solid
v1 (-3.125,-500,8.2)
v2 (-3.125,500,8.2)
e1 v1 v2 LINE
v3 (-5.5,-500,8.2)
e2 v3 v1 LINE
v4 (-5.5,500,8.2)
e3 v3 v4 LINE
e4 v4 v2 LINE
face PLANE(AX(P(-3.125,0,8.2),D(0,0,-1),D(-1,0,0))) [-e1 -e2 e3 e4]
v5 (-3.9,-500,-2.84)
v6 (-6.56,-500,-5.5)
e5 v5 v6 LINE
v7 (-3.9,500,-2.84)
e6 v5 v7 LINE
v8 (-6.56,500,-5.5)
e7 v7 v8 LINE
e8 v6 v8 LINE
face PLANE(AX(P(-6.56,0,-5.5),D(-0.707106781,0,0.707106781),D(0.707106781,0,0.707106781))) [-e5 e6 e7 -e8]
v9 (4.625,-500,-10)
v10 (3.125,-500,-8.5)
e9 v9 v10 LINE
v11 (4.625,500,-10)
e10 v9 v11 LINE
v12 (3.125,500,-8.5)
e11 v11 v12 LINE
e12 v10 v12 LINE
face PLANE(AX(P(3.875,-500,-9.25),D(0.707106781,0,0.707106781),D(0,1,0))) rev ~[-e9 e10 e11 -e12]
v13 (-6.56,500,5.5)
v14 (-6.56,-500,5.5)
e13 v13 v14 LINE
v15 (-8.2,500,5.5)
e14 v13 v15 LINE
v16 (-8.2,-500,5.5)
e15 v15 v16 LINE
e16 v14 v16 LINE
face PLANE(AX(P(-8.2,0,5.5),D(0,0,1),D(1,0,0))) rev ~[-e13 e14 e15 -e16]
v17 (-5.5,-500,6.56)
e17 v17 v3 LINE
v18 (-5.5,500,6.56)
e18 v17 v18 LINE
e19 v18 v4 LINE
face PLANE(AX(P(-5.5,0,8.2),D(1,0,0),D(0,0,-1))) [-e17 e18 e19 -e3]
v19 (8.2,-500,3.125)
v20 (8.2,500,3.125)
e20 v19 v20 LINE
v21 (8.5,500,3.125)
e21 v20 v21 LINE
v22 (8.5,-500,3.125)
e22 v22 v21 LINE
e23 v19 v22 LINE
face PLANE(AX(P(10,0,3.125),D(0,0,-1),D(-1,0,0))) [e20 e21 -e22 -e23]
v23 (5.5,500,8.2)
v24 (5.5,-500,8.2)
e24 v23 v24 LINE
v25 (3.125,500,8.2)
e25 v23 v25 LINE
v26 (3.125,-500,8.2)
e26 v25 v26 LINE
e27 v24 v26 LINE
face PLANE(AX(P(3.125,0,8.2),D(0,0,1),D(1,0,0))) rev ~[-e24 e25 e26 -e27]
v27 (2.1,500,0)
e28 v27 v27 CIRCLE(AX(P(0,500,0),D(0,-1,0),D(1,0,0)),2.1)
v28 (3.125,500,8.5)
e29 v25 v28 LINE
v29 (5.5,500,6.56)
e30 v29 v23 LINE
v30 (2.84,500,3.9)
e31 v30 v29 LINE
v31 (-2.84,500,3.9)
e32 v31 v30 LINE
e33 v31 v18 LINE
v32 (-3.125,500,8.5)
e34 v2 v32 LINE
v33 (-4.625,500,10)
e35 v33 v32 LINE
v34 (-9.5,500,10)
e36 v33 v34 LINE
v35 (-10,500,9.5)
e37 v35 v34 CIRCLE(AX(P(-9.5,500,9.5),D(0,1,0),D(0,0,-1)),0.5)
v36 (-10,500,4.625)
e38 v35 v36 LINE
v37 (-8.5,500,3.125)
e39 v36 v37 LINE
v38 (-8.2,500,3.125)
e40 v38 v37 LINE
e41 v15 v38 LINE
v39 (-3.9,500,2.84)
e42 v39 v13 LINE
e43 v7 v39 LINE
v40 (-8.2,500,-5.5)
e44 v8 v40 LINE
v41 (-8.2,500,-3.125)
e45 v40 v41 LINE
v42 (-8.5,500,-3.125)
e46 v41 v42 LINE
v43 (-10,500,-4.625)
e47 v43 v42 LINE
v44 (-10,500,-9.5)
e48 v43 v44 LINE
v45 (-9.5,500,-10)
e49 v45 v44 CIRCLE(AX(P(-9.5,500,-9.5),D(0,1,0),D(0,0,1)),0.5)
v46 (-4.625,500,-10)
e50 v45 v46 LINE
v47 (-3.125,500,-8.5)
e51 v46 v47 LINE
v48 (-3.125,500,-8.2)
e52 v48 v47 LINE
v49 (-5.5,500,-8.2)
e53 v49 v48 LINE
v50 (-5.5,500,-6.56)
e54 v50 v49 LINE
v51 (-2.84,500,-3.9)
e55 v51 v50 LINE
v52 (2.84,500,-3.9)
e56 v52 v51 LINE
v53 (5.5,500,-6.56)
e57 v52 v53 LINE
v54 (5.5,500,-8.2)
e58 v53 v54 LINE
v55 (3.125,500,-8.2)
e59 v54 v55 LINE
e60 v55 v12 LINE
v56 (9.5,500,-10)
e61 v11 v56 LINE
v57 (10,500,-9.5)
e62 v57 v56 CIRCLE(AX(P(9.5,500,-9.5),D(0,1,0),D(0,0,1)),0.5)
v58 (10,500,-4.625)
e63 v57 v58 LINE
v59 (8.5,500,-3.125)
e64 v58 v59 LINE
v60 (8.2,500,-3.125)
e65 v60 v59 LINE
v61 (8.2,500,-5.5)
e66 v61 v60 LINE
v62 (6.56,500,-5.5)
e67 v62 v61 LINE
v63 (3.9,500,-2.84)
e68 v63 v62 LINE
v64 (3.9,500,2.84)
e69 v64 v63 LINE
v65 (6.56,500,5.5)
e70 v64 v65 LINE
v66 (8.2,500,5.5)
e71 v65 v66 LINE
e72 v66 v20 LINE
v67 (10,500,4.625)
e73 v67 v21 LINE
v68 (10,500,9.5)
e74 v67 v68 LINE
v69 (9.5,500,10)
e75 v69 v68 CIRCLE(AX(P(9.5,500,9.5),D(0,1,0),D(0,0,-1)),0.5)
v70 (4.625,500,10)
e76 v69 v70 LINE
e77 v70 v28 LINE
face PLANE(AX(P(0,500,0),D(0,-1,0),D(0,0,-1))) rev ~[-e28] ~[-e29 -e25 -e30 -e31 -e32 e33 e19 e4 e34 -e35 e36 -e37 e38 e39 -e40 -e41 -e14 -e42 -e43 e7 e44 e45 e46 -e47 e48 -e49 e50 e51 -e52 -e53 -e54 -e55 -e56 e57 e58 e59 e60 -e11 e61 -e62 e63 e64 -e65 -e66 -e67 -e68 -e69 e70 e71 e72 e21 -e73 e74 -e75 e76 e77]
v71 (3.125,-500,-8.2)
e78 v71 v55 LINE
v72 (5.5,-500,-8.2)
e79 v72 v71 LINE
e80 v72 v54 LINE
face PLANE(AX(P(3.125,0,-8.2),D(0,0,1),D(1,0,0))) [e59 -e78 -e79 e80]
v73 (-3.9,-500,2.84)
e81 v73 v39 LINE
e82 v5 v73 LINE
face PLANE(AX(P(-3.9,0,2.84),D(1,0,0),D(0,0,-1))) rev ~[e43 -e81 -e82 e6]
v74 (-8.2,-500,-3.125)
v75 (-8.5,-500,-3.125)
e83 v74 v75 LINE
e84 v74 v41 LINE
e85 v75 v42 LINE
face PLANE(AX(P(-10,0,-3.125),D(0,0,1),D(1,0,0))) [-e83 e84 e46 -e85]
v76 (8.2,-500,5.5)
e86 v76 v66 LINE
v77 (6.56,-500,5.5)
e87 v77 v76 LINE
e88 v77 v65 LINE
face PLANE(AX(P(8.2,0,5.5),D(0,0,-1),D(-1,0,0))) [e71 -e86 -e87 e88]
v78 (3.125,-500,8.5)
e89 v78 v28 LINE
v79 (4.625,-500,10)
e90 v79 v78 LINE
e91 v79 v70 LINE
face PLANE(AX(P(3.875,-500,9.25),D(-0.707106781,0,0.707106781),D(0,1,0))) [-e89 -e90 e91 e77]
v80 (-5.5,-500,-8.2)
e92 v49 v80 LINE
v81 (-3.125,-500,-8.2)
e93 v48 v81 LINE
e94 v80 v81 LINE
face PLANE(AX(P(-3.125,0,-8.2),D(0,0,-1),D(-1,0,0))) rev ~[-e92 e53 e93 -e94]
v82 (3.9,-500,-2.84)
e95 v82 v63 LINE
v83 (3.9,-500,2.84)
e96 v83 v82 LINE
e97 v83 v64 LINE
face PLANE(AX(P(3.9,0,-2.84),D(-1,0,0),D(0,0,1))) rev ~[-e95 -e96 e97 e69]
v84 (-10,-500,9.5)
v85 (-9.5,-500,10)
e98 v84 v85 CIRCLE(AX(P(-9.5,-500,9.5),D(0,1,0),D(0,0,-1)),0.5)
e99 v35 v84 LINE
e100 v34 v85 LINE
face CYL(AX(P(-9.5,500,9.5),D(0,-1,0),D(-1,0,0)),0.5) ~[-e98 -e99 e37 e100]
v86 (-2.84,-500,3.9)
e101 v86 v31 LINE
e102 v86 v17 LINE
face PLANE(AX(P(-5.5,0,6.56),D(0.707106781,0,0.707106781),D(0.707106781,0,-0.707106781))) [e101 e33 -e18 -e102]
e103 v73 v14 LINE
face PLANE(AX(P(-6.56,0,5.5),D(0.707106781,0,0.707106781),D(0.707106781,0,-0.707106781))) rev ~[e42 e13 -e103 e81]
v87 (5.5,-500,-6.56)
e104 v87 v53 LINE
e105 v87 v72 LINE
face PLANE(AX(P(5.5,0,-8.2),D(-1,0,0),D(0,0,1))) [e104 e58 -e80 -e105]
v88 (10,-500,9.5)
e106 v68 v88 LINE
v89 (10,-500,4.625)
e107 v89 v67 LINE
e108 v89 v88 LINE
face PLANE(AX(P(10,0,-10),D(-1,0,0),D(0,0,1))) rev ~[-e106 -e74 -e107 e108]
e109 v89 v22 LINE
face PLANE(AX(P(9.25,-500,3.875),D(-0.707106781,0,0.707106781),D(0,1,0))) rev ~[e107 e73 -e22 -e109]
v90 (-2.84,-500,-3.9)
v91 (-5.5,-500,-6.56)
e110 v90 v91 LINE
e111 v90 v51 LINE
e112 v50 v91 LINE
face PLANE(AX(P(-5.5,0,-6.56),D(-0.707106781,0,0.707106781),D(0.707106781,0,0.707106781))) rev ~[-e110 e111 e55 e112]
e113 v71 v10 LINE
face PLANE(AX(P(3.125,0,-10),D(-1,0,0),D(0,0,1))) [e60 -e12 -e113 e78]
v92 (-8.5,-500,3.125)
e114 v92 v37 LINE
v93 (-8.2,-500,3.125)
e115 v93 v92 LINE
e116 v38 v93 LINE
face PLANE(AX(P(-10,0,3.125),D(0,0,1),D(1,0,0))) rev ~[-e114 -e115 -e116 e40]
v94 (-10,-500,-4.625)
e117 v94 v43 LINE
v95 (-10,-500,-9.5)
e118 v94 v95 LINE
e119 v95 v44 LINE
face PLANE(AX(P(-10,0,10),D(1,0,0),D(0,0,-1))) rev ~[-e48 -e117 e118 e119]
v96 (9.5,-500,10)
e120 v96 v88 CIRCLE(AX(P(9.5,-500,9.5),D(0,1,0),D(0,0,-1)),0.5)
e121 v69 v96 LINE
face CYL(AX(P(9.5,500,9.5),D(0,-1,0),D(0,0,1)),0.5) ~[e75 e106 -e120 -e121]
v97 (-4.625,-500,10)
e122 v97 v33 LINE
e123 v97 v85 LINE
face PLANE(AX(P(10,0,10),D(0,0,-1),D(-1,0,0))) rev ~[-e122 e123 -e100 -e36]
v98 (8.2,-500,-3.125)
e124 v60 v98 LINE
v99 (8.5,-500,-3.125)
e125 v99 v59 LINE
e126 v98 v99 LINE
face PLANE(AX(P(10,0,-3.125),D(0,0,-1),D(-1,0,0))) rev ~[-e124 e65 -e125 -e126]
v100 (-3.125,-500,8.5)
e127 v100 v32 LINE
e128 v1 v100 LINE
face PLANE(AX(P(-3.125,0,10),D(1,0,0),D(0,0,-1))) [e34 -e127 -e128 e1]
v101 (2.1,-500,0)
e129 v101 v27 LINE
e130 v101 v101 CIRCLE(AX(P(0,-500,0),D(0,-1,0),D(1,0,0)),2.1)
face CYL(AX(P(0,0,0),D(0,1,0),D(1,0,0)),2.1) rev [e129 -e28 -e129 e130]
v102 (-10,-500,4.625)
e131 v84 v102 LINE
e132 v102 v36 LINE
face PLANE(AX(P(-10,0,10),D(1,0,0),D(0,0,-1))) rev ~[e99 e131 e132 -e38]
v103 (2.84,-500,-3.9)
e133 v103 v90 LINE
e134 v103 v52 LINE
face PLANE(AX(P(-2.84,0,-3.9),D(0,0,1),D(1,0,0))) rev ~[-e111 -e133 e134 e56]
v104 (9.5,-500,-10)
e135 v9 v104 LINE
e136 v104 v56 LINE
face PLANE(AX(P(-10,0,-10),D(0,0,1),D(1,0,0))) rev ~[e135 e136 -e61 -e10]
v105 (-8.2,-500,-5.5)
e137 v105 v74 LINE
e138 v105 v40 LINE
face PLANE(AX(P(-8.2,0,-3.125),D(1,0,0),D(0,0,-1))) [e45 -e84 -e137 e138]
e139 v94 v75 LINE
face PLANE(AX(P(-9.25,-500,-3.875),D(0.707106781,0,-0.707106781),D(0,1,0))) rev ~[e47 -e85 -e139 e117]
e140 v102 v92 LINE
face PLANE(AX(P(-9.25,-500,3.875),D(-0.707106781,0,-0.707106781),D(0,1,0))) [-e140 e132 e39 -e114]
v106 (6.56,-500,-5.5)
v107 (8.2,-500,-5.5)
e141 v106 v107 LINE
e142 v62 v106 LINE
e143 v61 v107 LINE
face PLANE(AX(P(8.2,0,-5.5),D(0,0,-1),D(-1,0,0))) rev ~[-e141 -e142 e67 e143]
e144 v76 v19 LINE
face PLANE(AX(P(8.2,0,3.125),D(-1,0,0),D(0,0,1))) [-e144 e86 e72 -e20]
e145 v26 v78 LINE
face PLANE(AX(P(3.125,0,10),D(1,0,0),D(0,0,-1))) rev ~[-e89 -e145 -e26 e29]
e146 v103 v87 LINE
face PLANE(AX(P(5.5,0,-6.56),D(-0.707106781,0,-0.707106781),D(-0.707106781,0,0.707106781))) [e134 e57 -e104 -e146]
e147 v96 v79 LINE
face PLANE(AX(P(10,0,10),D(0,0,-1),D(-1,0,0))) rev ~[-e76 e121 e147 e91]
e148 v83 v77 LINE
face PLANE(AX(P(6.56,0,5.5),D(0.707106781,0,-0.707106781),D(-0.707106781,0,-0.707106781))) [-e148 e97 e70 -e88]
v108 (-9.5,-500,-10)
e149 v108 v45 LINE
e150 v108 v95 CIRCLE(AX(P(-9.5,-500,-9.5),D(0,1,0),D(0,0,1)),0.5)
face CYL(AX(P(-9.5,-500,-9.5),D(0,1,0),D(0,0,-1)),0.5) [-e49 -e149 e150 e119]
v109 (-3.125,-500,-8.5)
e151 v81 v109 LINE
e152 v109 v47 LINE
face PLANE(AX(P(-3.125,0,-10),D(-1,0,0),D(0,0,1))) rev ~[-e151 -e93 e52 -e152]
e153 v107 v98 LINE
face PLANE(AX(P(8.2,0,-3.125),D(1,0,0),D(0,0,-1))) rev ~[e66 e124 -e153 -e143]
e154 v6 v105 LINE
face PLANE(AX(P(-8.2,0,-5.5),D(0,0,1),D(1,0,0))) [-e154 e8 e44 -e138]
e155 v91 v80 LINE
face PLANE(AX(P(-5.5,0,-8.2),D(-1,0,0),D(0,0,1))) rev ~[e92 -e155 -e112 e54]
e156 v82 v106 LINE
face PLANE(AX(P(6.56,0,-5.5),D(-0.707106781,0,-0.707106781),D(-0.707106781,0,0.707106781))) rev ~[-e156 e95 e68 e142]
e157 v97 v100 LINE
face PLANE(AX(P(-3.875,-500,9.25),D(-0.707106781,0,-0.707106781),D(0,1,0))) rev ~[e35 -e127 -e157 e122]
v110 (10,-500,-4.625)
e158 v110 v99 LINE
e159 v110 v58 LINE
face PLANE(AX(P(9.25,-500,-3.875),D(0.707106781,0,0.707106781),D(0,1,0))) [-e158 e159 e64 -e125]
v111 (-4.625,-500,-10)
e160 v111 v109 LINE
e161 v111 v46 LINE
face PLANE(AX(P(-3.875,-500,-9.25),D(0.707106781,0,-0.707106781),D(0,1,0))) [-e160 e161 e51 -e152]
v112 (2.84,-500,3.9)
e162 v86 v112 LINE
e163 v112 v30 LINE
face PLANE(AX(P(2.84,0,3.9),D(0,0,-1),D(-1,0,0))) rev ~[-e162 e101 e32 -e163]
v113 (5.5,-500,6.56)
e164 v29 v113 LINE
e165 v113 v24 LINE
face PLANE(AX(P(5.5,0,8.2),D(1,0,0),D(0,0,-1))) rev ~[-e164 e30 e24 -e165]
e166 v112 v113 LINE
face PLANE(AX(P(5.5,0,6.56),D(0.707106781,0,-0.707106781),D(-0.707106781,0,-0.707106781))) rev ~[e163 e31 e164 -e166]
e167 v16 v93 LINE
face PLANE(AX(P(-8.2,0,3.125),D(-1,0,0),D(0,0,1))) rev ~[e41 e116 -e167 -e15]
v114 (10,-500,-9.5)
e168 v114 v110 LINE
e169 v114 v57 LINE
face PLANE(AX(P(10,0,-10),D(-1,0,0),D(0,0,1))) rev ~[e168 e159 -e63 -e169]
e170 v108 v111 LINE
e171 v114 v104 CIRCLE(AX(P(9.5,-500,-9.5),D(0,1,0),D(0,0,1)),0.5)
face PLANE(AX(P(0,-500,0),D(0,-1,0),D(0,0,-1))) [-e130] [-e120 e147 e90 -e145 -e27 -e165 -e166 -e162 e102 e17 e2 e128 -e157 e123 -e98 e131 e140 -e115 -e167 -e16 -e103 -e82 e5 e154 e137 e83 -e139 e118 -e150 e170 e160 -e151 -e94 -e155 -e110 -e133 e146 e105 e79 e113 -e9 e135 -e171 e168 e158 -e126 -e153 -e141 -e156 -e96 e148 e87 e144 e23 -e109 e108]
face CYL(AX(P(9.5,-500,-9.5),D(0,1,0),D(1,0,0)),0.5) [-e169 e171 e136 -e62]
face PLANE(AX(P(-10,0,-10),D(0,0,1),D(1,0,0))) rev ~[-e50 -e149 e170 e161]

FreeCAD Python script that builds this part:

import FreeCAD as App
import Part
import Sketcher
from FreeCAD import Vector
Q = App.Units.Quantity


def edges_at(feature, points):
    """Names of the edges that pass closest to the given points."""
    edges = feature.Shape.Edges
    near = lambda p: min(range(len(edges)), key=lambda i: edges[i].distToShape(Part.Vertex(*p))[0])
    return sorted({f"Edge{near(p) + 1}" for p in points})

doc = App.newDocument("Part")
params = doc.addObject("Spreadsheet::Sheet", "Params")
for row, (alias, value) in enumerate([
    ("sketch1_diameter", "4.2 mm"),
    ("sketch1_width", "20 mm"),
    ("pad1_length", "1000 mm"),
    ("sketch2_height", "1.8 mm"),
    ("sketch2_width", "6.25 mm"),
    ("sketch2_width2", "5.68 mm"),
    ("sketch2_height2", "1.64 mm"),
    ("chamfer_size", "1.5 mm"),
    ("fillet_radius", "0.5 mm"),
], start=1):
    params.set(f"A{row}", alias)
    params.set(f"B{row}", "=" + value)
    params.setAlias(f"B{row}", alias)

body = doc.addObject("PartDesign::Body", "Body")

# Sketch on XZ plane
sketch1 = body.newObject("Sketcher::SketchObject", "Sketch")
sketch1.AttachmentSupport = (doc.getObject("XZ_Plane"), [""])
sketch1.MapMode = "FlatFace"
sketch1.addGeometry([
    Part.LineSegment(Vector(-10, -10, 0), Vector(10, -10, 0)),  # 0
    Part.LineSegment(Vector(10, -10, 0), Vector(10, 10, 0)),  # 1
    Part.LineSegment(Vector(10, 10, 0), Vector(-10, 10, 0)),  # 2
    Part.LineSegment(Vector(-10, 10, 0), Vector(-10, -10, 0)),  # 3
    Part.Circle(Vector(0, 0, 0), Vector(0, 0, 1), 2.1),  # 4
], False)
sketch1.addConstraint([
    Sketcher.Constraint("Coincident", 0, 2, 1, 1),
    Sketcher.Constraint("Coincident", 1, 2, 2, 1),
    Sketcher.Constraint("Coincident", 2, 2, 3, 1),
    Sketcher.Constraint("Coincident", 3, 2, 0, 1),
    Sketcher.Constraint("Horizontal", 0),
    Sketcher.Constraint("Vertical", 1),
    Sketcher.Constraint("Horizontal", 2),
    Sketcher.Constraint("Vertical", 3),
    Sketcher.Constraint("Coincident", 4, 3, -1, 1),
    Sketcher.Constraint("Symmetric", 0, 2, 2, 2, -1, 1),
    Sketcher.Constraint("Equal", 2, 1),
    Sketcher.Constraint("Diameter", 4, Q("4.2 mm")),
    Sketcher.Constraint("DistanceX", 0, 1, 0, 2, Q("20 mm")),
])
sketch1.setExpression("Constraints[11]", "Params.sketch1_diameter")
sketch1.setExpression("Constraints[12]", "Params.sketch1_width")
pad1 = body.newObject("PartDesign::Pad", "Pad")
pad1.Profile = sketch1
pad1.setExpression("Length", "Params.pad1_length")
pad1.Midplane = True

# Sketch on XZ plane
sketch2 = body.newObject("Sketcher::SketchObject", "Sketch001")
sketch2.AttachmentSupport = (doc.getObject("XZ_Plane"), [""])
sketch2.MapMode = "FlatFace"
sketch2.addGeometry([
    Part.LineSegment(Vector(2.8, 3.9, 0), Vector(5.5, 6.6, 0)),  # 0
    Part.LineSegment(Vector(5.5, 6.6, 0), Vector(5.5, 8.2, 0)),  # 1
    Part.LineSegment(Vector(5.5, 8.2, 0), Vector(3.1, 8.2, 0)),  # 2
    Part.LineSegment(Vector(3.1, 8.2, 0), Vector(3.1, 10, 0)),  # 3
    Part.LineSegment(Vector(3.1, 10, 0), Vector(-3.1, 10, 0)),  # 4
    Part.LineSegment(Vector(-3.1, 10, 0), Vector(-3.1, 8.2, 0)),  # 5
    Part.LineSegment(Vector(-3.1, 8.2, 0), Vector(-5.5, 8.2, 0)),  # 6
    Part.LineSegment(Vector(-5.5, 8.2, 0), Vector(-5.5, 6.6, 0)),  # 7
    Part.LineSegment(Vector(-5.5, 6.6, 0), Vector(-2.8, 3.9, 0)),  # 8
    Part.LineSegment(Vector(-2.8, 3.9, 0), Vector(2.8, 3.9, 0)),  # 9
], False)
sketch2.addConstraint([
    Sketcher.Constraint("Coincident", 0, 2, 1, 1),
    Sketcher.Constraint("Coincident", 1, 2, 2, 1),
    Sketcher.Constraint("Coincident", 2, 2, 3, 1),
    Sketcher.Constraint("Coincident", 3, 2, 4, 1),
    Sketcher.Constraint("Coincident", 4, 2, 5, 1),
    Sketcher.Constraint("Coincident", 5, 2, 6, 1),
    Sketcher.Constraint("Coincident", 6, 2, 7, 1),
    Sketcher.Constraint("Coincident", 7, 2, 8, 1),
    Sketcher.Constraint("Coincident", 8, 2, 9, 1),
    Sketcher.Constraint("Coincident", 9, 2, 0, 1),
    Sketcher.Constraint("Vertical", 1),
    Sketcher.Constraint("Horizontal", 2),
    Sketcher.Constraint("Vertical", 3),
    Sketcher.Constraint("Horizontal", 4),
    Sketcher.Constraint("Vertical", 5),
    Sketcher.Constraint("Horizontal", 6),
    Sketcher.Constraint("Vertical", 7),
    Sketcher.Constraint("Horizontal", 9),
    Sketcher.Constraint("Symmetric", 2, 2, 5, 2, -2),
    Sketcher.Constraint("Symmetric", 0, 2, 7, 2, -2),
    Sketcher.Constraint("Perpendicular", 0, 8),
    Sketcher.Constraint("Equal", 0, 8),
    Sketcher.Constraint("DistanceY", 3, 1, 3, 2, Q("1.8 mm")),
    Sketcher.Constraint("DistanceY", -1, 1, 3, 2, Q("10 mm")),
    Sketcher.Constraint("DistanceX", 6, 2, 1, 2, Q("11 mm")),
    Sketcher.Constraint("DistanceX", 4, 2, 4, 1, Q("6.25 mm")),
    Sketcher.Constraint("DistanceX", 9, 1, 9, 2, Q("5.68 mm")),
    Sketcher.Constraint("DistanceY", 1, 1, 1, 2, Q("1.64 mm")),
])
sketch2.setExpression("Constraints[22]", "Params.sketch2_height")
sketch2.setExpression("Constraints[25]", "Params.sketch2_width")
sketch2.setExpression("Constraints[26]", "Params.sketch2_width2")
sketch2.setExpression("Constraints[27]", "Params.sketch2_height2")
pocket1 = body.newObject("PartDesign::Pocket", "Pocket")
pocket1.Profile = sketch2
pocket1.Type = "ThroughAll"
pocket1.Midplane = True
doc.recompute()

chamfer = body.newObject("PartDesign::Chamfer", "Chamfer")
chamfer.Base = (pocket1, edges_at(pocket1, [(-3.125, 0, 10), (3.125, 0, 10)]))
chamfer.setExpression("Size", "Params.chamfer_size")
doc.recompute()

polarpattern = body.newObject("PartDesign::PolarPattern", "PolarPattern")
polarpattern.Originals = [pocket1, chamfer]
polarpattern.Axis = (doc.getObject("Y_Axis"), [""])
polarpattern.Angle = 360
polarpattern.Occurrences = 4
body.Tip = polarpattern
doc.recompute()

fillet = body.newObject("PartDesign::Fillet", "Fillet")
fillet.Base = (polarpattern, edges_at(polarpattern, [
    (-10, 0, 10),
    (10, 0, 10),
    (10, 0, -10),
    (-10, 0, -10),
]))
fillet.setExpression("Radius", "Params.fillet_radius")

doc.recompute()
